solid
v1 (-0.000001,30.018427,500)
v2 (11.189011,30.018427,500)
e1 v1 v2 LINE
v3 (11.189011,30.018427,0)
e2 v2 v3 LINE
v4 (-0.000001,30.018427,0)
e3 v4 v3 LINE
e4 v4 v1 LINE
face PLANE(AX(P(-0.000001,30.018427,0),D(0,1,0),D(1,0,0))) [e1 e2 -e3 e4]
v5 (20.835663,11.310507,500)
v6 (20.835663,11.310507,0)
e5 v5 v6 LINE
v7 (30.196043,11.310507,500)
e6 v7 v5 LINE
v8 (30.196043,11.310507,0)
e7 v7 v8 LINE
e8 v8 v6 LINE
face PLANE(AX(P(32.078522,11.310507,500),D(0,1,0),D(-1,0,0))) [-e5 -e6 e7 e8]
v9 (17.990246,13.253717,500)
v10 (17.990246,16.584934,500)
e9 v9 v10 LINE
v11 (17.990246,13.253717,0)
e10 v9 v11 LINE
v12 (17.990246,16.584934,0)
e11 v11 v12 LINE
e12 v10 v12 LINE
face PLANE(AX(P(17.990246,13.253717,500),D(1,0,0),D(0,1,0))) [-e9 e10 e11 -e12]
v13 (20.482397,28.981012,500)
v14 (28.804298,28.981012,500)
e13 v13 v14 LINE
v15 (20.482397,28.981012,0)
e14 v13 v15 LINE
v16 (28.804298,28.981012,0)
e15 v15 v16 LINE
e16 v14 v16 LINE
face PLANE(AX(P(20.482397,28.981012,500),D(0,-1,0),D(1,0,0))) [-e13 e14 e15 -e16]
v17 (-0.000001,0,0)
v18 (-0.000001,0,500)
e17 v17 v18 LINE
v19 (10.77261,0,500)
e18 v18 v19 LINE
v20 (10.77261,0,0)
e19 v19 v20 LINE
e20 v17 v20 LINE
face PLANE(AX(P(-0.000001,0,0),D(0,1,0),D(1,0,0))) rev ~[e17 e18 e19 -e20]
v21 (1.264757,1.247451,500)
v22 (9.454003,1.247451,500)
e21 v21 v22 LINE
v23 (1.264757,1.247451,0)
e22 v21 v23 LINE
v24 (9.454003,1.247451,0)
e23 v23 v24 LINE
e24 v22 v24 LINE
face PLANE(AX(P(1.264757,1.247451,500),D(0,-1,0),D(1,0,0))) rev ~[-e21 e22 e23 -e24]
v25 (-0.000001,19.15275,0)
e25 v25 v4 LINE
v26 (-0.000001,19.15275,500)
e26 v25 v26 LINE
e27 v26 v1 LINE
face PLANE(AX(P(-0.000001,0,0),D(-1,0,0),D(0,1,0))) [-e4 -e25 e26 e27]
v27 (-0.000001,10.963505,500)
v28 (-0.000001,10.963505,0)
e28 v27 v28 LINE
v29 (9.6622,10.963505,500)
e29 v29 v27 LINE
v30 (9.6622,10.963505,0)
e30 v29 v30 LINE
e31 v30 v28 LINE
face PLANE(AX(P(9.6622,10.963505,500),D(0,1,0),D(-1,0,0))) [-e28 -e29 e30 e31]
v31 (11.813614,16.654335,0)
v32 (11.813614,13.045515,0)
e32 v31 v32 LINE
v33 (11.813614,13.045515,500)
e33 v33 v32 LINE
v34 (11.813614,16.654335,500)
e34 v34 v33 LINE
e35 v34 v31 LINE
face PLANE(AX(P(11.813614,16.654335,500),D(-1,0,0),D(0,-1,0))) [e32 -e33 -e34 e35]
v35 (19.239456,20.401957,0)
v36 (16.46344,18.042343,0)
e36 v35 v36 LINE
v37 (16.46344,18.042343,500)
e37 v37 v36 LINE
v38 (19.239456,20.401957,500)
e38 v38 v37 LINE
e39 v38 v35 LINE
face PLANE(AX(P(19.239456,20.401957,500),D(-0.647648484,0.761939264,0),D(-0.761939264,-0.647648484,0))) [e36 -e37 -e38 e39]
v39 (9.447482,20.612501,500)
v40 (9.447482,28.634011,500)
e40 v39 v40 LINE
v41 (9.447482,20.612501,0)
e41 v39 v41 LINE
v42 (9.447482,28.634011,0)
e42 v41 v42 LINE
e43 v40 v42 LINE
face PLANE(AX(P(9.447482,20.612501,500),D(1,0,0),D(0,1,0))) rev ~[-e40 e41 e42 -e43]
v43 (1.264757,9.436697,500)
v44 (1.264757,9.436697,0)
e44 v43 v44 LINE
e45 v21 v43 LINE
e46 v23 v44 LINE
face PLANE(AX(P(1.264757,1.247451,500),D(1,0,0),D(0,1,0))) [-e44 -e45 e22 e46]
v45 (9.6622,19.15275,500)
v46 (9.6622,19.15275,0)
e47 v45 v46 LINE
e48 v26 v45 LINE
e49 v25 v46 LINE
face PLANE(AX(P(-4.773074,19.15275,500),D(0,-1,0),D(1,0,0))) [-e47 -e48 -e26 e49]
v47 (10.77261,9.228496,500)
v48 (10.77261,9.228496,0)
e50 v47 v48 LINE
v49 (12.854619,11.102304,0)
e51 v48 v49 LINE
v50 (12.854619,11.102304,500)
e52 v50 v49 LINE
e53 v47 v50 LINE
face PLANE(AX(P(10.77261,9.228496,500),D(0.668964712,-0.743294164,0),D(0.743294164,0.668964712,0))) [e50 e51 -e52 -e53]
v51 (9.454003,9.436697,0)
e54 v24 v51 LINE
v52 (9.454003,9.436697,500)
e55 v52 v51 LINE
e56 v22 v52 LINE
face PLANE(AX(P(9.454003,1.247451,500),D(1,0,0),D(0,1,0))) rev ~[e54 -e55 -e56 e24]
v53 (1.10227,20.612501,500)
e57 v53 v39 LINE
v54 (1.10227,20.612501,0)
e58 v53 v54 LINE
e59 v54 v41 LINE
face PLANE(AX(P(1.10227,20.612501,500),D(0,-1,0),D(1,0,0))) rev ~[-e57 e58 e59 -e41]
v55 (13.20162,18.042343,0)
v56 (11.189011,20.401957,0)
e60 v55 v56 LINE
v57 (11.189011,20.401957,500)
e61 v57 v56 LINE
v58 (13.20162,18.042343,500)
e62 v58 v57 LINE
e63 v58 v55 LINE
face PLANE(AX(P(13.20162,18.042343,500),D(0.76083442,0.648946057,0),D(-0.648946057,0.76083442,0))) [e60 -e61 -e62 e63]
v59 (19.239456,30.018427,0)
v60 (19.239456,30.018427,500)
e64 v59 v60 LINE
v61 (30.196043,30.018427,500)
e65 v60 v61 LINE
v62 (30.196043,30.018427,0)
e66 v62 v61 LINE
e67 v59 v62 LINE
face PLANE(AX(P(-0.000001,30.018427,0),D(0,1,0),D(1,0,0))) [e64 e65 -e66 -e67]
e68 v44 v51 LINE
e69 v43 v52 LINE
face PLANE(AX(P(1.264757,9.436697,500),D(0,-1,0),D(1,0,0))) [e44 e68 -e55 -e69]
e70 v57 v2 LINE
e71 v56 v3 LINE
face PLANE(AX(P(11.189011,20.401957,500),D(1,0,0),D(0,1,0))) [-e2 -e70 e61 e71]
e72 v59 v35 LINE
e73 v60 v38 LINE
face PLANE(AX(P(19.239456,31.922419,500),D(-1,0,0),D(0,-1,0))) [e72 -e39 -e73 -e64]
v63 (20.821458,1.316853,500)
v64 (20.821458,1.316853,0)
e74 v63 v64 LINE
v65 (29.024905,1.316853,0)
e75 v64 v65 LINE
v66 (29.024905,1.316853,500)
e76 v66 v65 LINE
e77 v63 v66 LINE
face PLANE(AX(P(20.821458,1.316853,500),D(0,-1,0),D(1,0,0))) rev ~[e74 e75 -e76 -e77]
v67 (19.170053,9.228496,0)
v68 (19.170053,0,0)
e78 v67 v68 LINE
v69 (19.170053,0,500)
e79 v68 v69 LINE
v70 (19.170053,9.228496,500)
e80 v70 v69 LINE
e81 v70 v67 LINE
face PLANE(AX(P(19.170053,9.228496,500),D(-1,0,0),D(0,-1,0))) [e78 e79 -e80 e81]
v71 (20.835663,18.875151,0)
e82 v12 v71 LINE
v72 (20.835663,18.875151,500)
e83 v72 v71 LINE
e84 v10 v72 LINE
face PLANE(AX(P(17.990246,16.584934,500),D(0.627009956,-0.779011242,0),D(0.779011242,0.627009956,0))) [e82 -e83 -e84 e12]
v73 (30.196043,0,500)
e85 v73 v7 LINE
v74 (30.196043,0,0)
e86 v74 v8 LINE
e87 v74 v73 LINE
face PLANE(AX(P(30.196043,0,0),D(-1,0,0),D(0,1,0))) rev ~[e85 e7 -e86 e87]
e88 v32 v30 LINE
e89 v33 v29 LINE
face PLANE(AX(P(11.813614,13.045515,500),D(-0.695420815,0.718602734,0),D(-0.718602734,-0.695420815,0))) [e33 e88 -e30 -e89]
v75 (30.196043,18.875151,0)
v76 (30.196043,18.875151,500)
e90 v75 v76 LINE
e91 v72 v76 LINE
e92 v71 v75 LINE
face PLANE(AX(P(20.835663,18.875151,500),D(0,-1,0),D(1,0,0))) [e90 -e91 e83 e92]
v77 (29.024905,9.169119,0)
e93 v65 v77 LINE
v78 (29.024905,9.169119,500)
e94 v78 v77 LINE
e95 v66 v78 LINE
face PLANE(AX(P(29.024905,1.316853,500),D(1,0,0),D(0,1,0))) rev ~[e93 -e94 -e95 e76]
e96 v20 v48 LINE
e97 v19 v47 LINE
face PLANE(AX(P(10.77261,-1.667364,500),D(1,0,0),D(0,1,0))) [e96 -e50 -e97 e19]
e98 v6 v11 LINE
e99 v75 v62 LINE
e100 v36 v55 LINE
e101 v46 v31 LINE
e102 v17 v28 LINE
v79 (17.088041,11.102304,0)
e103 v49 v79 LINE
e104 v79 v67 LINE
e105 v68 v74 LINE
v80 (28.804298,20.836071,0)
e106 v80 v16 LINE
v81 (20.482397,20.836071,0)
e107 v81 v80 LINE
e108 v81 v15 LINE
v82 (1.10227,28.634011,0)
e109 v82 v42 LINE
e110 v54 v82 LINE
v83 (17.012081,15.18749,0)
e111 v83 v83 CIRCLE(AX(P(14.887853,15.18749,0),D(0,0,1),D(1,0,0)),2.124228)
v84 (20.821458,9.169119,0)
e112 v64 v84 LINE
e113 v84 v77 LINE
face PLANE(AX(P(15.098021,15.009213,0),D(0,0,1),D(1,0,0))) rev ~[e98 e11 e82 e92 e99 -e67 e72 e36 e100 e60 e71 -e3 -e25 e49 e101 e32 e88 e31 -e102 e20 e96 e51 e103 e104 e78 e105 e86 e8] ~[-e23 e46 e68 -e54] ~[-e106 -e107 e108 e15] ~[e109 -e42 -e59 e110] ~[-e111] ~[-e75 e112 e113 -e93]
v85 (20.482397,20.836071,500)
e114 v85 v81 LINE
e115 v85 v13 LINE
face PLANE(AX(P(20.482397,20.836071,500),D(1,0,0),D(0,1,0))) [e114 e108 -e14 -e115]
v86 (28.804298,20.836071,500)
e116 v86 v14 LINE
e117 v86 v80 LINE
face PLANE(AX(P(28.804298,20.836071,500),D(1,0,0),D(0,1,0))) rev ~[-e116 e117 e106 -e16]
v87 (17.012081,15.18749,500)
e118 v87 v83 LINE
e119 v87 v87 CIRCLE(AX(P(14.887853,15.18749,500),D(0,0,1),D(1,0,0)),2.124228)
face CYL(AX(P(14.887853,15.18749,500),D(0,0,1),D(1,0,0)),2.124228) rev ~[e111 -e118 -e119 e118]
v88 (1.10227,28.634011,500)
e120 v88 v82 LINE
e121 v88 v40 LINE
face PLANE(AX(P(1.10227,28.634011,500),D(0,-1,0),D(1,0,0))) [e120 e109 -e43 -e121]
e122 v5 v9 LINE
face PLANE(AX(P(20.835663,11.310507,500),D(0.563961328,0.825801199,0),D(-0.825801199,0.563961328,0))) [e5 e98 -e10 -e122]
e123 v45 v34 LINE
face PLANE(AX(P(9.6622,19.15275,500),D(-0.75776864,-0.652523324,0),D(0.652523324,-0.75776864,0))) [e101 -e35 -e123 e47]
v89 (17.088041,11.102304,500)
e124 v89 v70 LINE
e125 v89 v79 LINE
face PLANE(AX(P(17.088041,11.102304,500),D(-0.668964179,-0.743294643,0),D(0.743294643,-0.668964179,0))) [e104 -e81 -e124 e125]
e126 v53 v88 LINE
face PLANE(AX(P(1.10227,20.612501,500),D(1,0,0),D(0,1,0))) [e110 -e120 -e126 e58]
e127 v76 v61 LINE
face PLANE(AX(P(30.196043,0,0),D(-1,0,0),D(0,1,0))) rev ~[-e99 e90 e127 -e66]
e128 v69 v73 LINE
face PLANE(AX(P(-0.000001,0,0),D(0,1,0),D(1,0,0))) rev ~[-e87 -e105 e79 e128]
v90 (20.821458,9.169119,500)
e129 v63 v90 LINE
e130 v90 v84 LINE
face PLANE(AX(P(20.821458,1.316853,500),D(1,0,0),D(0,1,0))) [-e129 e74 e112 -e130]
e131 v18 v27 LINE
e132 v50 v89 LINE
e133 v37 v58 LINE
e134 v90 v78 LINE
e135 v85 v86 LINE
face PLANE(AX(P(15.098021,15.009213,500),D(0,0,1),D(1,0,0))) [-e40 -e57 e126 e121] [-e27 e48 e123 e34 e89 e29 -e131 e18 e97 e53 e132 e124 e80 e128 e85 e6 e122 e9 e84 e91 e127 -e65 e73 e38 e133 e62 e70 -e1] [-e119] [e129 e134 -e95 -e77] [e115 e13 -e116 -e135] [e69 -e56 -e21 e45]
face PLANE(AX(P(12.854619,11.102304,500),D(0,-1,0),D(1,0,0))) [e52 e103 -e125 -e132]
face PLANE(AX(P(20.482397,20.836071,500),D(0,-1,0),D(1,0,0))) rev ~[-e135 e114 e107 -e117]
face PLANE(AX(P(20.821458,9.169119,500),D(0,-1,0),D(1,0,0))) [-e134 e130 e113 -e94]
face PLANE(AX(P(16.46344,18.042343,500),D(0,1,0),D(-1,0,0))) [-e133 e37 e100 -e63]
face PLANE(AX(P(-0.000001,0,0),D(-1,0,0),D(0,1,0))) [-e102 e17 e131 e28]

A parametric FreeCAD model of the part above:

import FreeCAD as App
import Part
import Sketcher


def add_polygon(sketch, points):
    """Adds a closed chain of lines whose ends are joined by coincident constraints."""
    first, n = sketch.GeometryCount, len(points)
    for a, b in zip(points, points[1:] + points[:1]):
        sketch.addGeometry(Part.LineSegment(App.Vector(*a, 0), App.Vector(*b, 0)), False)
    for i in range(n):
        sketch.addConstraint(Sketcher.Constraint("Coincident", first + i, 2, first + (i + 1) % n, 1))

doc = App.newDocument("Part")
body = doc.addObject("PartDesign::Body", "Body")

sketch1 = doc.addObject("Sketcher::SketchObject", "Sketch")
body.addObject(sketch1)
sketch1.AttachmentSupport = (doc.XY_Plane, [""])
sketch1.MapMode = "FlatFace"
add_polygon(sketch1, [(0, 30), (0, 0), (30, 0), (30, 30)])
sketch1.addConstraint([
    Sketcher.Constraint("Vertical", 0),
    Sketcher.Constraint("Horizontal", 1),
    Sketcher.Constraint("Vertical", 2),
    Sketcher.Constraint("Horizontal", 3),
    Sketcher.Constraint("Coincident", 0, 2, -1, 1),
    Sketcher.Constraint("DistanceX", 1, 1, 1, 2, 30.196043),
    Sketcher.Constraint("DistanceY", 0, 2, 0, 1, 30.018427),
])
pad1 = doc.addObject("PartDesign::Pad", "Pad")
body.addObject(pad1)
pad1.Profile = sketch1
pad1.Length = 500

sketch2 = doc.addObject("Sketcher::SketchObject", "Sketch001")
body.addObject(sketch2)
sketch2.AttachmentSupport = (doc.XY_Plane, [""])
sketch2.MapMode = "FlatFace"
sketch2.AttachmentOffset = App.Placement(App.Vector(0, 0, 500), App.Rotation())
sketch2.addGeometry(Part.Circle(App.Vector(14.9, 15.2, 0), App.Vector(0, 0, 1), 2.1), False)
add_polygon(sketch2, [(1.3, 9.4), (1.3, 1.2), (9.5, 1.2), (9.5, 9.4)])
add_polygon(sketch2, [(20.8, 9.2), (20.8, 1.3), (29, 1.3), (29, 9.2)])
add_polygon(sketch2, [(20.5, 29), (20.5, 20.8), (28.8, 20.8), (28.8, 29)])
add_polygon(sketch2, [(1.1, 28.6), (1.1, 20.6), (9.4, 20.6), (9.4, 28.6)])
add_polygon(sketch2, [(19.2, -1.7), (19.2, 9.2), (17.1, 11.1), (12.9, 11.1), (10.8, 9.2), (10.8, -1.7)])
add_polygon(sketch2, [(20.8, 11.3), (32.1, 11.3), (32.1, 18.9), (20.8, 18.9), (18, 16.6), (18, 13.3)])
add_polygon(sketch2, [(19.2, 31.9), (11.2, 31.9), (11.2, 20.4), (13.2, 18), (16.5, 18), (19.2, 20.4)])
add_polygon(sketch2, [(9.7, 19.2), (-4.8, 19.2), (-4.8, 11), (9.7, 11), (11.8, 13), (11.8, 16.7)])
sketch2.addConstraint([
    Sketcher.Constraint("Vertical", 1),
    Sketcher.Constraint("Horizontal", 2),
    Sketcher.Constraint("Vertical", 3),
    Sketcher.Constraint("Horizontal", 4),
    Sketcher.Constraint("Vertical", 5),
    Sketcher.Constraint("Horizontal", 6),
    Sketcher.Constraint("Vertical", 7),
    Sketcher.Constraint("Horizontal", 8),
    Sketcher.Constraint("Vertical", 9),
    Sketcher.Constraint("Horizontal", 10),
    Sketcher.Constraint("Vertical", 11),
    Sketcher.Constraint("Horizontal", 12),
    Sketcher.Constraint("Vertical", 13),
    Sketcher.Constraint("Horizontal", 14),
    Sketcher.Constraint("Vertical", 15),
    Sketcher.Constraint("Horizontal", 16),
    Sketcher.Constraint("Vertical", 17),
    Sketcher.Constraint("Horizontal", 19),
    Sketcher.Constraint("Vertical", 21),
    Sketcher.Constraint("Horizontal", 22),
    Sketcher.Constraint("Horizontal", 23),
    Sketcher.Constraint("Vertical", 24),
    Sketcher.Constraint("Horizontal", 25),
    Sketcher.Constraint("Vertical", 27),
    Sketcher.Constraint("Horizontal", 29),
    Sketcher.Constraint("Vertical", 30),
    Sketcher.Constraint("Horizontal", 32),
    Sketcher.Constraint("Vertical", 34),
    Sketcher.Constraint("Horizontal", 35),
    Sketcher.Constraint("Vertical", 36),
    Sketcher.Constraint("Horizontal", 37),
    Sketcher.Constraint("Vertical", 39),
    Sketcher.Constraint("Horizontal", 17, 2, 20, 2),
    Sketcher.Constraint("Horizontal", 30, 2, 33, 2),
    Sketcher.Constraint("Vertical", 25, 2, 28, 2),
    Sketcher.Constraint("Vertical", 37, 2, 40, 2),
    Sketcher.Constraint("Equal", 4, 1),
    Sketcher.Constraint("Equal", 3, 36),
    Sketcher.Constraint("Diameter", 0, 4.248456),
    Sketcher.Constraint("DistanceX", 10, 1, 10, 2, 8.321901),
    Sketcher.Constraint("DistanceY", 15, 2, 12, 2, 0.347001),
    Sketcher.Constraint("Distance", 26, 3.652601),
    Sketcher.Constraint("DistanceX", 14, 1, 14, 2, 8.345211),
    Sketcher.Constraint("DistanceX", 23, 1, 23, 2, 11.242859),
    Sketcher.Constraint("DistanceX", 32, 1, 32, 2, 3.26182),
    Sketcher.Constraint("DistanceY", 9, 2, 9, 1, 8.144941),
    Sketcher.Constraint("DistanceY", 13, 2, 13, 1, 8.02151),
    Sketcher.Constraint("DistanceY", 17, 1, 17, 2, 10.89586),
    Sketcher.Constraint("DistanceY", 39, 1, 39, 2, 3.60882),
    Sketcher.Constraint("DistanceY", -1, 1, 13, 2, 20.612501),
    Sketcher.Constraint("DistanceX", -1, 1, 37, 2, 9.6622),
    Sketcher.Constraint("DistanceY", 2, 2, 5, 2, 0.069402),
    Sketcher.Constraint("DistanceX", 1, 2, 5, 2, 19.556701),
    Sketcher.Constraint("DistanceX", 0, 3, 17, 2, 4.2822),
    Sketcher.Constraint("DistanceY", 17, 2, 3, 2, 0.208201),
    Sketcher.Constraint("DistanceY", 37, 2, 19, 2, 0.138799),
    Sketcher.Constraint("Distance", 18, 2.801059),
    Sketcher.Constraint("Distance", 31, 3.10135),
    Sketcher.Constraint("Distance", 40, 3.297068),
    Sketcher.Constraint("DistanceX", 2, 1, 2, 2, 8.189246),
    Sketcher.Constraint("DistanceX", 6, 1, 6, 2, 8.203447),
    Sketcher.Constraint("DistanceX", 19, 2, 19, 1, 4.233422),
    Sketcher.Constraint("DistanceX", 22, 1, 22, 2, 8.397443),
    Sketcher.Constraint("DistanceX", 29, 2, 29, 1, 8.050445),
    Sketcher.Constraint("DistanceX", 35, 2, 35, 1, 14.435274),
    Sketcher.Constraint("DistanceY", 5, 2, 5, 1, 7.852266),
    Sketcher.Constraint("DistanceY", 24, 1, 24, 2, 7.564644),
    Sketcher.Constraint("DistanceY", 27, 2, 27, 1, 3.331217),
    Sketcher.Constraint("DistanceY", 30, 2, 30, 1, 11.520462),
    Sketcher.Constraint("DistanceY", -1, 1, 0, 3, 15.18749),
    Sketcher.Constraint("DistanceY", -1, 1, 1, 2, 1.247451),
    Sketcher.Constraint("DistanceX", -1, 1, 5, 2, 20.821458),
    Sketcher.Constraint("DistanceX", -1, 1, 13, 2, 1.10227),
    Sketcher.Constraint("DistanceX", -1, 1, 18, 2, 17.088041),
    Sketcher.Constraint("DistanceX", -1, 1, 20, 2, 10.77261),
    Sketcher.Constraint("DistanceY", -1, 1, 24, 2, 18.875151),
    Sketcher.Constraint("DistanceX", -1, 1, 29, 2, 11.189011),
    Sketcher.Constraint("DistanceY", -1, 1, 29, 2, 31.922419),
    Sketcher.Constraint("DistanceX", -1, 1, 31, 2, 13.20162),
    Sketcher.Constraint("DistanceX", 9, 2, 8, 2, 0.339062),
    Sketcher.Constraint("DistanceX", 17, 2, 23, 2, 12.908469),
    Sketcher.Constraint("DistanceX", 26, 2, 9, 2, 2.492151),
    Sketcher.Constraint("DistanceY", 19, 2, 38, 2, 1.943211),
])
pocket1 = doc.addObject("PartDesign::Pocket", "Pocket")
body.addObject(pocket1)
pocket1.Profile = sketch2
pocket1.Length = 500

doc.recompute()
